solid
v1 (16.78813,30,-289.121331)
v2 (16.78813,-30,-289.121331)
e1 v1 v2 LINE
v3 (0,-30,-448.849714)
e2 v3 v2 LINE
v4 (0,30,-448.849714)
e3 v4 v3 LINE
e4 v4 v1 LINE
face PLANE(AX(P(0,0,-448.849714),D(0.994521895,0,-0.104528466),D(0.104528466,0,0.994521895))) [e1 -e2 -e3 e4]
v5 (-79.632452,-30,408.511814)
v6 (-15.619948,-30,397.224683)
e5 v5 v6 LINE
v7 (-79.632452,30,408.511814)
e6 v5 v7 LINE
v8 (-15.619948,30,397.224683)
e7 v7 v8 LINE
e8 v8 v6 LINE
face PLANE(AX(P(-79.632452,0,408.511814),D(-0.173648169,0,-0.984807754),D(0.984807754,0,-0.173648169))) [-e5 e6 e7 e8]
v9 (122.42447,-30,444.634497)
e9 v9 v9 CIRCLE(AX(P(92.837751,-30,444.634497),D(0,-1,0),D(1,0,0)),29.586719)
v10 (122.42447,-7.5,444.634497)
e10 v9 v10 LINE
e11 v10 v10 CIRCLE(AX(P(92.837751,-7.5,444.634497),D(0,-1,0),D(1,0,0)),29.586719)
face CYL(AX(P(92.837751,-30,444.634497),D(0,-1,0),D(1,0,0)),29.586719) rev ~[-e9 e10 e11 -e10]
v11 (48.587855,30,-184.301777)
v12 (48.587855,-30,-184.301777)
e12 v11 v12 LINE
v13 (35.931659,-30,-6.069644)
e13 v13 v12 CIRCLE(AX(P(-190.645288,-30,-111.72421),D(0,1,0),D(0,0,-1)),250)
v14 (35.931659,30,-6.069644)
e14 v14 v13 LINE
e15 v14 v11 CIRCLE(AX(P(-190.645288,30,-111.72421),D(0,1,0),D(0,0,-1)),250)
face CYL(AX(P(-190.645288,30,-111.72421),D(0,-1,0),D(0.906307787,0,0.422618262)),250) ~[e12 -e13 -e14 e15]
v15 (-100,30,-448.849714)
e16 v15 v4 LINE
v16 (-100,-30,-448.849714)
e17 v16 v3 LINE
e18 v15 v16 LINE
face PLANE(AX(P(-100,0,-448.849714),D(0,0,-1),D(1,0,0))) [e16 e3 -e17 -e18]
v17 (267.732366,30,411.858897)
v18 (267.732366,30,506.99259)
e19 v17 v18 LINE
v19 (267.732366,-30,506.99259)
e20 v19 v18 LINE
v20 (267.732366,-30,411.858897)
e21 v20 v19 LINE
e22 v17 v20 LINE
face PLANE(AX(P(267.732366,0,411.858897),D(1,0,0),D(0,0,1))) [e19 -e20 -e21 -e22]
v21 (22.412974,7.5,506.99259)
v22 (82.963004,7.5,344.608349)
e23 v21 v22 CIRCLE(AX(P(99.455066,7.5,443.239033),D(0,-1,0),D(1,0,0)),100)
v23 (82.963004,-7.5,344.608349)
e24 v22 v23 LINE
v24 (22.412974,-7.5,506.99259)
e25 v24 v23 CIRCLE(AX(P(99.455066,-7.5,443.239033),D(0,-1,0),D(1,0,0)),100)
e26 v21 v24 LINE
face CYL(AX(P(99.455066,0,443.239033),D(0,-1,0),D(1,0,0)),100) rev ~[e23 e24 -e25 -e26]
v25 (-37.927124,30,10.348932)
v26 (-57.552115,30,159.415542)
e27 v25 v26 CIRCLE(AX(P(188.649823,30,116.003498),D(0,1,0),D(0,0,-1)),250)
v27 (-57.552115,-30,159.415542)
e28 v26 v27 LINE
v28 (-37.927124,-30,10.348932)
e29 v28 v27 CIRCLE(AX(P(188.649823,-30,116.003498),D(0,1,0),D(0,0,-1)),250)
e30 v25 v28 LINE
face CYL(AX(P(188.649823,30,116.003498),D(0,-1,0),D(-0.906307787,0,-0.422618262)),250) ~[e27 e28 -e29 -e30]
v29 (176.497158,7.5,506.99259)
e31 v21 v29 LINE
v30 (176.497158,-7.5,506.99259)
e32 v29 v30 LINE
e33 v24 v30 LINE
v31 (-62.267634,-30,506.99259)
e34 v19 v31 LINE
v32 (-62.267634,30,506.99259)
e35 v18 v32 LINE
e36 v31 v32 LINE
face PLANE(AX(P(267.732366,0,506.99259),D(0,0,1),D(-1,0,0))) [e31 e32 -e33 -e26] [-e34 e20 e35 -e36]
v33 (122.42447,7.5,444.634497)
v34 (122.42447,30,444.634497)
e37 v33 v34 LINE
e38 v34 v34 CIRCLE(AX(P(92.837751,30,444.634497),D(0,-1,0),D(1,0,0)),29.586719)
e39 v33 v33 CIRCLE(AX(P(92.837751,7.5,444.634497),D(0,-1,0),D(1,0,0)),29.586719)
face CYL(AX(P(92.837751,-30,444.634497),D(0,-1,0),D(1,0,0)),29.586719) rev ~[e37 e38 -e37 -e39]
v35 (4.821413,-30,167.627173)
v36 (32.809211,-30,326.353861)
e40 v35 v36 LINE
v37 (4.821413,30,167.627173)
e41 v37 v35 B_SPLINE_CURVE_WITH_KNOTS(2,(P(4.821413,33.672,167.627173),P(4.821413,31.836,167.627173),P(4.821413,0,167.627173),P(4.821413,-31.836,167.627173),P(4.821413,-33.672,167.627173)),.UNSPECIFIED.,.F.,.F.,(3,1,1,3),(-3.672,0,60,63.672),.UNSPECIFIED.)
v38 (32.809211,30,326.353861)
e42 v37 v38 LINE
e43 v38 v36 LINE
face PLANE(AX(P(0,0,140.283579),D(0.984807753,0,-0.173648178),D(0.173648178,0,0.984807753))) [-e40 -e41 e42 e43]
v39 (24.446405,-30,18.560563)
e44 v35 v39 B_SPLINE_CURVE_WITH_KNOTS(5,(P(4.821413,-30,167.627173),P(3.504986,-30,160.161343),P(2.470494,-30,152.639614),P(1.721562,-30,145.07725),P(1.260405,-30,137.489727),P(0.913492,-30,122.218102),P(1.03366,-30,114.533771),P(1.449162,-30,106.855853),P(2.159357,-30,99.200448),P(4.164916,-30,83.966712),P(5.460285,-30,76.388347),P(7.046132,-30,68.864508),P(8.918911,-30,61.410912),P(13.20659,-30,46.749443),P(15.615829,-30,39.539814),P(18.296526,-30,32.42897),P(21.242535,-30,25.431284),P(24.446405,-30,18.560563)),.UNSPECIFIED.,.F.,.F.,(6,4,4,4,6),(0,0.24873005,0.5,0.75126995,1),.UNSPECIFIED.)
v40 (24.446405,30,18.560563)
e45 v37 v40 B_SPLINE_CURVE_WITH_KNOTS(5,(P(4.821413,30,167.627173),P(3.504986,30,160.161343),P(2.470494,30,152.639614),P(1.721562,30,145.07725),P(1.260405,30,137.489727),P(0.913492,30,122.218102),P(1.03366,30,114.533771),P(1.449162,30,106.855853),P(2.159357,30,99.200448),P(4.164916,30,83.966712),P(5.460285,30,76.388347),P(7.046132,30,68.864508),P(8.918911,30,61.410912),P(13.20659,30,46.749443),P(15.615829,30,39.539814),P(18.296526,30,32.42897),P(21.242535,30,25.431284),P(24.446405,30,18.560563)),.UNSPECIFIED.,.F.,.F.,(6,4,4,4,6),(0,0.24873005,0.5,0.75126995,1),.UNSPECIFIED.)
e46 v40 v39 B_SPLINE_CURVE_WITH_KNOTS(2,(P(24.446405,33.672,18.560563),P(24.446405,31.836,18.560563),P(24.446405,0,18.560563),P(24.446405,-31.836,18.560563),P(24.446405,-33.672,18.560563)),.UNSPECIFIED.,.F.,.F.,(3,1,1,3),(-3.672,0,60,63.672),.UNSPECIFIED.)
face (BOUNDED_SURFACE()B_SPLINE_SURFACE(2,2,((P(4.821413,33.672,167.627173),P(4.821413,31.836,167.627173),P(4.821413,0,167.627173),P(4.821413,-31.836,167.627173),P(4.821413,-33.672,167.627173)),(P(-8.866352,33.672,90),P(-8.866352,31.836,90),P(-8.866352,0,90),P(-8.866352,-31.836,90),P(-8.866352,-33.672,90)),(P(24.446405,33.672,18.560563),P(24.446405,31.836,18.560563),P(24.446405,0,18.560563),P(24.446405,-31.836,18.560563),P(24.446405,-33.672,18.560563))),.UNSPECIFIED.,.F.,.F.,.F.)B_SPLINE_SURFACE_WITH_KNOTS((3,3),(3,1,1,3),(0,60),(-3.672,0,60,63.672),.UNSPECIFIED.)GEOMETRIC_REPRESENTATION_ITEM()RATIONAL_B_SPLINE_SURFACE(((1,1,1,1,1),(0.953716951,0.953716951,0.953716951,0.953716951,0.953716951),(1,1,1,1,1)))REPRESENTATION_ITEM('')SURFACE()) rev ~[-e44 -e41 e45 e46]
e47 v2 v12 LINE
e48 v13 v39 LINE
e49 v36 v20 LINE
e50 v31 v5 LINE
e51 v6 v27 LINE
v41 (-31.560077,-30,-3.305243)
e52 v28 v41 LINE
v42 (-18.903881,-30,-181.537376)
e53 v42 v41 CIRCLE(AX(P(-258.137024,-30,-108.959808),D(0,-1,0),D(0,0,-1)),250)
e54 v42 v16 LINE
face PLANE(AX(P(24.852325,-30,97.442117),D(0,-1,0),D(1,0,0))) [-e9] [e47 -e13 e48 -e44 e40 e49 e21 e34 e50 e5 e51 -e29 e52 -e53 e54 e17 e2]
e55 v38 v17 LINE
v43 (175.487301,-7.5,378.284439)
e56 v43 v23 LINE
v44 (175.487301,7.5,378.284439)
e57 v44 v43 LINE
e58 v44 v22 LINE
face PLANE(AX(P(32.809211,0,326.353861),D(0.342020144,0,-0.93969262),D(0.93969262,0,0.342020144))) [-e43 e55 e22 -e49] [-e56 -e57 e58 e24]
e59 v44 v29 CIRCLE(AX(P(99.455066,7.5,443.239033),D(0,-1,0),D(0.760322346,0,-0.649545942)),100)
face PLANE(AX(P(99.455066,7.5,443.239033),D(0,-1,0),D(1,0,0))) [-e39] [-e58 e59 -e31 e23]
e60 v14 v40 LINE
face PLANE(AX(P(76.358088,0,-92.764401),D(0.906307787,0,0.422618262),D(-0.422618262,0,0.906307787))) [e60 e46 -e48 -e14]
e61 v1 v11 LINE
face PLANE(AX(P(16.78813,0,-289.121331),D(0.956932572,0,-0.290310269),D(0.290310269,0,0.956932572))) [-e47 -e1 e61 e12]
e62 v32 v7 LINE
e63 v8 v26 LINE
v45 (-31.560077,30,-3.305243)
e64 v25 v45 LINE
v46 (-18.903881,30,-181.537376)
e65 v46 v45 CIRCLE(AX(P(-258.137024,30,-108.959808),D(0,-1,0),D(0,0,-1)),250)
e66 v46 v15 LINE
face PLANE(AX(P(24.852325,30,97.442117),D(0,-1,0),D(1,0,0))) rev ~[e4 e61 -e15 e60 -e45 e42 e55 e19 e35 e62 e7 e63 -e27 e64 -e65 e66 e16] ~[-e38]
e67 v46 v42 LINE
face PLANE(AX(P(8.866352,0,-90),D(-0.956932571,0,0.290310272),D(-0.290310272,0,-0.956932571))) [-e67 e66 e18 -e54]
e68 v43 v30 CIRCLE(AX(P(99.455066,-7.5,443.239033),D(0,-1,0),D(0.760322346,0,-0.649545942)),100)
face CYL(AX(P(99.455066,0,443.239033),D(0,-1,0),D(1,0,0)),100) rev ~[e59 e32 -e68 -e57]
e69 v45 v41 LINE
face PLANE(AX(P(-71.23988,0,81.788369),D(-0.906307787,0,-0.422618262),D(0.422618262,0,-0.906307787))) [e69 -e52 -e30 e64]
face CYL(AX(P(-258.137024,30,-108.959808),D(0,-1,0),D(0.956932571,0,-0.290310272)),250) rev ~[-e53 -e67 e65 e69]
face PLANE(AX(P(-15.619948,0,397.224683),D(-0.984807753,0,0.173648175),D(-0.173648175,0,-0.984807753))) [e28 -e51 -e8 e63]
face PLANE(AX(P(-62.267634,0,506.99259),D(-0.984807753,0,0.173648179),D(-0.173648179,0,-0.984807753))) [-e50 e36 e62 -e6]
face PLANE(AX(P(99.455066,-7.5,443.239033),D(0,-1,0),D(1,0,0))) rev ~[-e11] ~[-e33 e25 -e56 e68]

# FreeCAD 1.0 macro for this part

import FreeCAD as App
import Part
import Sketcher
Q = App.Units.Quantity


def edges_at(feature, points):
    """Names of the edges that pass closest to the given points."""
    edges = feature.Shape.Edges
    near = lambda p: min(range(len(edges)), key=lambda i: edges[i].distToShape(Part.Vertex(*p))[0])
    return sorted({f"Edge{near(p) + 1}" for p in points})

doc = App.newDocument("Part")
body = doc.addObject("PartDesign::Body", "Body")

# Sketch on XZ plane
sketch1 = body.newObject("Sketcher::SketchObject", "Sketch")
sketch1.AttachmentSupport = (doc.getObject("XZ_Plane"), [""])
sketch1.MapMode = "FlatFace"
sketch1.addGeometry([
    Part.LineSegment(App.Vector(-80, 409, 0), App.Vector(-16, 397, 0)),  # 0
    Part.LineSegment(App.Vector(-16, 397, 0), App.Vector(-71, 82, 0)),  # 1
    Part.LineSegment(App.Vector(-71, 82, 0), App.Vector(9, -90, 0)),  # 2
    Part.LineSegment(App.Vector(9, -90, 0), App.Vector(-100, -449, 0)),  # 3
    Part.LineSegment(App.Vector(-100, -449, 0), App.Vector(0, -449, 0)),  # 4
    Part.LineSegment(App.Vector(0, -449, 0), App.Vector(17, -289, 0)),  # 5
    Part.LineSegment(App.Vector(17, -289, 0), App.Vector(76, -93, 0)),  # 6
    Part.LineSegment(App.Vector(76, -93, 0), App.Vector(0, 71, 0)),  # 7
    Part.LineSegment(App.Vector(0, 71, 0), App.Vector(-9, 90, 0)),  # 8
    Part.LineSegment(App.Vector(-9, 90, 0), App.Vector(0, 140, 0)),  # 9
    Part.LineSegment(App.Vector(0, 140, 0), App.Vector(33, 326, 0)),  # 10
    Part.LineSegment(App.Vector(33, 326, 0), App.Vector(268, 412, 0)),  # 11
    Part.LineSegment(App.Vector(268, 412, 0), App.Vector(268, 507, 0)),  # 12
    Part.LineSegment(App.Vector(268, 507, 0), App.Vector(-62, 507, 0)),  # 13
    Part.LineSegment(App.Vector(-62, 507, 0), App.Vector(-80, 409, 0)),  # 14
], False)
sketch1.addConstraint([
    Sketcher.Constraint("Coincident", 0, 2, 1, 1),
    Sketcher.Constraint("Coincident", 1, 2, 2, 1),
    Sketcher.Constraint("Coincident", 2, 2, 3, 1),
    Sketcher.Constraint("Coincident", 3, 2, 4, 1),
    Sketcher.Constraint("Coincident", 4, 2, 5, 1),
    Sketcher.Constraint("Coincident", 5, 2, 6, 1),
    Sketcher.Constraint("Coincident", 6, 2, 7, 1),
    Sketcher.Constraint("Coincident", 7, 2, 8, 1),
    Sketcher.Constraint("Coincident", 8, 2, 9, 1),
    Sketcher.Constraint("Coincident", 9, 2, 10, 1),
    Sketcher.Constraint("Coincident", 10, 2, 11, 1),
    Sketcher.Constraint("Coincident", 11, 2, 12, 1),
    Sketcher.Constraint("Coincident", 12, 2, 13, 1),
    Sketcher.Constraint("Coincident", 13, 2, 14, 1),
    Sketcher.Constraint("Coincident", 14, 2, 0, 1),
    Sketcher.Constraint("Horizontal", 4),
    Sketcher.Constraint("Vertical", 12),
    Sketcher.Constraint("Horizontal", 13),
    Sketcher.Constraint("Symmetric", 2, 2, 8, 2, -1, 1),
    Sketcher.Constraint("PointOnObject", 4, 2, -2),
    Sketcher.Constraint("PointOnObject", 7, 2, -2),
    Sketcher.Constraint("PointOnObject", 9, 2, -2),
    Sketcher.Constraint("Perpendicular", 0, 1),
    Sketcher.Constraint("Parallel", 3, 6),
    Sketcher.Constraint("Parallel", 2, 7),
    Sketcher.Constraint("Parallel", 7, 8),
    Sketcher.Constraint("Parallel", 1, 9),
    Sketcher.Constraint("Parallel", 9, 10),
    Sketcher.Constraint("Parallel", 10, 14),
    Sketcher.Constraint("DistanceX", 4, 1, 4, 2, 100.0),
    Sketcher.Constraint("DistanceX", 13, 2, 13, 1, 330.0),
    Sketcher.Constraint("Angle", 0, Q("-10 deg")),
    Sketcher.Constraint("Angle", 2, Q("-65 deg")),
    Sketcher.Constraint("Angle", 5, Q("84 deg")),
    Sketcher.Constraint("Angle", 11, Q("20 deg")),
    Sketcher.Constraint("Distance", 0, 65.0),
    Sketcher.Constraint("Distance", 3, 375.0),
    Sketcher.Constraint("Distance", 11, 250.0),
    Sketcher.Constraint("Distance", 14, 100.000001),
    Sketcher.Constraint("DistanceY", 2, 2, -1, 1, 90.0),
    Sketcher.Constraint("DistanceY", 6, 2, -1, 1, 92.764401),
    Sketcher.Constraint("DistanceX", 0, 2, 2, 2, 24.4863),
    Sketcher.Constraint("DistanceY", 5, 2, 1, 2, 370.9097),
    Sketcher.Constraint("DistanceX", 14, 2, 8, 2, 70.7661),
])
pad1 = body.newObject("PartDesign::Pad", "Pad")
pad1.Profile = sketch1
pad1.Length = 60
pad1.Midplane = True
doc.recompute()

fillet = body.newObject("PartDesign::Fillet", "Fillet")
fillet.Base = (pad1, edges_at(pad1, [
    (-8.866, 0, 90),
    (76.358, 0, -92.764),
    (-71.24, 0, 81.788),
    (8.866, 0, -90),
]))
fillet.Radius = 250

# Sketch on XZ plane
sketch2 = body.newObject("Sketcher::SketchObject", "Sketch001")
sketch2.AttachmentSupport = (doc.getObject("XZ_Plane"), [""])
sketch2.MapMode = "FlatFace"
sketch2.AttachmentOffset = App.Placement(App.Vector(0, 0, 30), App.Rotation())
sketch2.addGeometry(Part.Circle(App.Vector(93, 445, 0), App.Vector(0, 0, 1), 30), False)
sketch2.addConstraint([
    Sketcher.Constraint("Diameter", 0, 59.173438),
    Sketcher.Constraint("DistanceX", -1, 1, 0, 3, 92.837751),
    Sketcher.Constraint("DistanceY", -1, 1, 0, 3, 444.634497),
])
pocket1 = body.newObject("PartDesign::Pocket", "Pocket")
pocket1.Profile = sketch2
pocket1.Type = "ThroughAll"

# Sketch on XZ plane
sketch3 = body.newObject("Sketcher::SketchObject", "Sketch002")
sketch3.AttachmentSupport = (doc.getObject("XZ_Plane"), [""])
sketch3.MapMode = "FlatFace"
sketch3.addGeometry(Part.Circle(App.Vector(99, 443, 0), App.Vector(0, 0, 1), 100), False)
sketch3.addConstraint([
    Sketcher.Constraint("Diameter", 0, 200.0),
    Sketcher.Constraint("DistanceX", -1, 1, 0, 3, 99.455066),
    Sketcher.Constraint("DistanceY", -1, 1, 0, 3, 443.239033),
])
pocket2 = body.newObject("PartDesign::Pocket", "Pocket001")
pocket2.Profile = sketch3
pocket2.Length = 15
pocket2.Midplane = True

doc.recompute()
